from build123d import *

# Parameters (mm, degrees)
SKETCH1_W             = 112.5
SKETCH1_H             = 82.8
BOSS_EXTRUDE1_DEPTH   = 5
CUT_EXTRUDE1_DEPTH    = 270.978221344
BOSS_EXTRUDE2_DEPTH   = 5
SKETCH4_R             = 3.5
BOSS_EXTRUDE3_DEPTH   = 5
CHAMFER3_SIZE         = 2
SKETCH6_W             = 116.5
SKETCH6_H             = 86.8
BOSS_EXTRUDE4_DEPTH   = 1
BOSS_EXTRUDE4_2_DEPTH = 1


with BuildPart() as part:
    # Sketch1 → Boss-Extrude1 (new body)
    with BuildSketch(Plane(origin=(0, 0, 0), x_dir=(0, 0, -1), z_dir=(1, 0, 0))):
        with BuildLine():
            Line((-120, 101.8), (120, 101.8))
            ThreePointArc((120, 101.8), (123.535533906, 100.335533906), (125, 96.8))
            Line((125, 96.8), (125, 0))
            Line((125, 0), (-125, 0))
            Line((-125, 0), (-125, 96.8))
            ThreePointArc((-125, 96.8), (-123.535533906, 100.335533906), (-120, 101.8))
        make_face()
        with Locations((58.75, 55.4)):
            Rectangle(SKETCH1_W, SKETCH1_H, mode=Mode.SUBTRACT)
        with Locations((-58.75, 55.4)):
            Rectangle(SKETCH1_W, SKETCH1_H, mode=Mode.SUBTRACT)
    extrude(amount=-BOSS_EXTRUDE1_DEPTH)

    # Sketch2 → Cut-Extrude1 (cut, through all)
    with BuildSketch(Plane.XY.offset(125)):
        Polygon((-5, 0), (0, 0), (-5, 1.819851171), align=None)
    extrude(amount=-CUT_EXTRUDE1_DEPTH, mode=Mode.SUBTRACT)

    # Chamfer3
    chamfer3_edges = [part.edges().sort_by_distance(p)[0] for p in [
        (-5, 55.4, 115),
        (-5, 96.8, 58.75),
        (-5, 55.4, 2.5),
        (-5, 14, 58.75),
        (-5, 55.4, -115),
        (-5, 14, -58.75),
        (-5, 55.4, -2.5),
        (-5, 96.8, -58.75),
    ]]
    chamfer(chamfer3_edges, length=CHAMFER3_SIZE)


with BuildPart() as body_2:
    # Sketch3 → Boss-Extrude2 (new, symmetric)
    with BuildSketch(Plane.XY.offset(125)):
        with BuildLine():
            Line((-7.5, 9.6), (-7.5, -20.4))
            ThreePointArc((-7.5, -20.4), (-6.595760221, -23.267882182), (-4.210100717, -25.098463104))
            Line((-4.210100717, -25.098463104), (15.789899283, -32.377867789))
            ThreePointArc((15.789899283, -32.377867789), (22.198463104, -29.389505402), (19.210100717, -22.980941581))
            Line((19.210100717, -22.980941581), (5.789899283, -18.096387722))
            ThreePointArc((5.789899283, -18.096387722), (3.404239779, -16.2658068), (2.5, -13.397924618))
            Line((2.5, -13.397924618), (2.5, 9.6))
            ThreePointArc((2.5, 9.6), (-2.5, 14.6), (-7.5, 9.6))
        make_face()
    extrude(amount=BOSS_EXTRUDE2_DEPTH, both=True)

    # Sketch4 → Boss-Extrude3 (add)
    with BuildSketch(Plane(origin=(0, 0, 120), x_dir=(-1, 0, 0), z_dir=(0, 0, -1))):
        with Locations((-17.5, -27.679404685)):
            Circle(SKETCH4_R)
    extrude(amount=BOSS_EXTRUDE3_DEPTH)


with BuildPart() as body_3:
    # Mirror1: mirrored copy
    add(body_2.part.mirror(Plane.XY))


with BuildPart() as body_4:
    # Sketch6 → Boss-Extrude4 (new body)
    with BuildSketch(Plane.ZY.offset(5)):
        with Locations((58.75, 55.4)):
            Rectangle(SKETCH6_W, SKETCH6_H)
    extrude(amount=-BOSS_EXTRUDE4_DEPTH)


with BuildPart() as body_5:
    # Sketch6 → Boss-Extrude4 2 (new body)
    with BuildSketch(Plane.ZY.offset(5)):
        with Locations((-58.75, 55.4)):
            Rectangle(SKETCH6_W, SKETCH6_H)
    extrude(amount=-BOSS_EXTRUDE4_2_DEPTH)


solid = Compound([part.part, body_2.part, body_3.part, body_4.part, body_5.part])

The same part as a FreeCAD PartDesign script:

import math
import FreeCAD as App
import Part
import Sketcher
Q = App.Units.Quantity


def edges_at(feature, points):
    """Names of the edges that pass closest to the given points."""
    edges = feature.Shape.Edges
    near = lambda p: min(range(len(edges)), key=lambda i: edges[i].distToShape(Part.Vertex(*p))[0])
    return sorted({f"Edge{near(p) + 1}" for p in points})

doc = App.newDocument("Part")
params = doc.addObject("Spreadsheet::Sheet", "Params")
for row, (alias, value) in enumerate([
    ("sketch1_radius", "5 mm"),
    ("sketch1_height", "240 mm"),
    ("sketch1_width", "96.8 mm"),
    ("sketch1_width2", "82.8 mm"),
    ("sketch1_height2", "112.5 mm"),
    ("pad1_length", "5 mm"),
    ("sketch2_width", "5 mm"),
    ("chamfer_size", "2 mm"),
    ("sketch3_radius", "5 mm"),
    ("sketch3_height", "30 mm"),
    ("pad2_length", "10 mm"),
    ("sketch4_diameter", "7 mm"),
    ("pad3_length", "5 mm"),
    ("sketch5_width", "86.8 mm"),
    ("sketch5_height", "116.5 mm"),
    ("pad4_length", "1 mm"),
    ("sketch6_width", "86.8 mm"),
    ("sketch6_height", "116.5 mm"),
    ("pad5_length", "1 mm"),
], start=1):
    params.set(f"A{row}", alias)
    params.set(f"B{row}", "=" + value)
    params.setAlias(f"B{row}", alias)

body = doc.addObject("PartDesign::Body", "Body")

sketch1 = doc.addObject("Sketcher::SketchObject", "Sketch")
body.addObject(sketch1)
sketch1.AttachmentSupport = (doc.YZ_Plane, [""])
sketch1.MapMode = "FlatFace"
sketch1.addGeometry(Part.LineSegment(App.Vector(102, -120, 0), App.Vector(102, 120, 0)), False)
sketch1.addGeometry(Part.ArcOfCircle(Part.Circle(App.Vector(97, 120, 0), App.Vector(0, 0, 1), 5), math.radians(0), math.radians(90)), False)
sketch1.addGeometry(Part.LineSegment(App.Vector(97, 125, 0), App.Vector(0, 125, 0)), False)
sketch1.addGeometry(Part.LineSegment(App.Vector(0, 125, 0), App.Vector(0, -125, 0)), False)
sketch1.addGeometry(Part.LineSegment(App.Vector(0, -125, 0), App.Vector(97, -125, 0)), False)
sketch1.addGeometry(Part.ArcOfCircle(Part.Circle(App.Vector(97, -120, 0), App.Vector(0, 0, 1), 5), math.radians(-90), math.radians(0)), False)
sketch1.addGeometry(Part.LineSegment(App.Vector(14, -2, 0), App.Vector(97, -2, 0)), False)
sketch1.addGeometry(Part.LineSegment(App.Vector(97, -2, 0), App.Vector(97, -115, 0)), False)
sketch1.addGeometry(Part.LineSegment(App.Vector(97, -115, 0), App.Vector(14, -115, 0)), False)
sketch1.addGeometry(Part.LineSegment(App.Vector(14, -115, 0), App.Vector(14, -2, 0)), False)
sketch1.addGeometry(Part.LineSegment(App.Vector(14, 115, 0), App.Vector(97, 115, 0)), False)
sketch1.addGeometry(Part.LineSegment(App.Vector(97, 115, 0), App.Vector(97, 2, 0)), False)
sketch1.addGeometry(Part.LineSegment(App.Vector(97, 2, 0), App.Vector(14, 2, 0)), False)
sketch1.addGeometry(Part.LineSegment(App.Vector(14, 2, 0), App.Vector(14, 115, 0)), False)
sketch1.addConstraint(Sketcher.Constraint("Tangent", 0, 2, 1, 1))
sketch1.addConstraint(Sketcher.Constraint("Tangent", 1, 2, 2, 1))
sketch1.addConstraint(Sketcher.Constraint("Coincident", 2, 2, 3, 1))
sketch1.addConstraint(Sketcher.Constraint("Coincident", 3, 2, 4, 1))
sketch1.addConstraint(Sketcher.Constraint("Tangent", 4, 2, 5, 1))
sketch1.addConstraint(Sketcher.Constraint("Tangent", 5, 2, 0, 1))
sketch1.addConstraint(Sketcher.Constraint("Coincident", 6, 2, 7, 1))
sketch1.addConstraint(Sketcher.Constraint("Coincident", 7, 2, 8, 1))
sketch1.addConstraint(Sketcher.Constraint("Coincident", 8, 2, 9, 1))
sketch1.addConstraint(Sketcher.Constraint("Coincident", 9, 2, 6, 1))
sketch1.addConstraint(Sketcher.Constraint("Coincident", 10, 2, 11, 1))
sketch1.addConstraint(Sketcher.Constraint("Coincident", 11, 2, 12, 1))
sketch1.addConstraint(Sketcher.Constraint("Coincident", 12, 2, 13, 1))
sketch1.addConstraint(Sketcher.Constraint("Coincident", 13, 2, 10, 1))
sketch1.addConstraint(Sketcher.Constraint("Vertical", 0))
sketch1.addConstraint(Sketcher.Constraint("Horizontal", 2))
sketch1.addConstraint(Sketcher.Constraint("Vertical", 3))
sketch1.addConstraint(Sketcher.Constraint("Horizontal", 4))
sketch1.addConstraint(Sketcher.Constraint("Horizontal", 6))
sketch1.addConstraint(Sketcher.Constraint("Vertical", 7))
sketch1.addConstraint(Sketcher.Constraint("Horizontal", 8))
sketch1.addConstraint(Sketcher.Constraint("Vertical", 9))
sketch1.addConstraint(Sketcher.Constraint("Horizontal", 10))
sketch1.addConstraint(Sketcher.Constraint("Vertical", 11))
sketch1.addConstraint(Sketcher.Constraint("Horizontal", 12))
sketch1.addConstraint(Sketcher.Constraint("Vertical", 13))
sketch1.addConstraint(Sketcher.Constraint("Equal", 1, 5))
sketch1.addConstraint(Sketcher.Constraint("Symmetric", 2, 2, 3, 2, -1, 1))
sketch1.addConstraint(Sketcher.Constraint("Symmetric", 7, 2, 10, 2, -1))
sketch1.addConstraint(Sketcher.Constraint("Symmetric", 9, 2, 12, 2, -1))
sketch1.addConstraint(Sketcher.Constraint("Vertical", 4, 2, 6, 2))
sketch1.addConstraint(Sketcher.Constraint("Radius", 1, Q("5 mm")))
sketch1.addConstraint(Sketcher.Constraint("DistanceY", 0, 1, 0, 2, Q("240 mm")))
sketch1.addConstraint(Sketcher.Constraint("DistanceX", 2, 2, 2, 1, Q("96.8 mm")))
sketch1.addConstraint(Sketcher.Constraint("DistanceX", 6, 1, 6, 2, Q("82.8 mm")))
sketch1.addConstraint(Sketcher.Constraint("DistanceY", 7, 2, 7, 1, Q("112.5 mm")))
sketch1.addConstraint(Sketcher.Constraint("DistanceY", 7, 2, -1, 1, Q("115 mm")))
sketch1.setExpression("Constraints[31]", "Params.sketch1_radius")
sketch1.setExpression("Constraints[32]", "Params.sketch1_height")
sketch1.setExpression("Constraints[33]", "Params.sketch1_width")
sketch1.setExpression("Constraints[34]", "Params.sketch1_width2")
sketch1.setExpression("Constraints[35]", "Params.sketch1_height2")
pad1 = doc.addObject("PartDesign::Pad", "Pad")
body.addObject(pad1)
pad1.Profile = sketch1
pad1.setExpression("Length", "Params.pad1_length")
pad1.Reversed = True

sketch2 = doc.addObject("Sketcher::SketchObject", "Sketch001")
body.addObject(sketch2)
sketch2.AttachmentSupport = (doc.XY_Plane, [""])
sketch2.MapMode = "FlatFace"
sketch2.AttachmentOffset = App.Placement(App.Vector(0, 0, 125), App.Rotation())
sketch2.addGeometry(Part.LineSegment(App.Vector(-5, 0, 0), App.Vector(0, 0, 0)), False)
sketch2.addGeometry(Part.LineSegment(App.Vector(0, 0, 0), App.Vector(-5, 1.8, 0)), False)
sketch2.addGeometry(Part.LineSegment(App.Vector(-5, 1.8, 0), App.Vector(-5, 0, 0)), False)
sketch2.addConstraint(Sketcher.Constraint("Coincident", 0, 2, 1, 1))
sketch2.addConstraint(Sketcher.Constraint("Coincident", 1, 2, 2, 1))
sketch2.addConstraint(Sketcher.Constraint("Coincident", 2, 2, 0, 1))
sketch2.addConstraint(Sketcher.Constraint("Horizontal", 0))
sketch2.addConstraint(Sketcher.Constraint("Vertical", 2))
sketch2.addConstraint(Sketcher.Constraint("Coincident", 0, 2, -1, 1))
sketch2.addConstraint(Sketcher.Constraint("DistanceX", 0, 1, 0, 2, Q("5 mm")))
sketch2.addConstraint(Sketcher.Constraint("Angle", 1, Q("160 deg")))
sketch2.setExpression("Constraints[6]", "Params.sketch2_width")
pocket1 = doc.addObject("PartDesign::Pocket", "Pocket")
body.addObject(pocket1)
pocket1.Profile = sketch2
pocket1.Type = "ThroughAll"
doc.recompute()

chamfer = doc.addObject("PartDesign::Chamfer", "Chamfer")
body.addObject(chamfer)
chamfer.Base = (pocket1, edges_at(pocket1, [
    (-5, 55.4, 115),
    (-5, 96.8, 58.75),
    (-5, 55.4, 2.5),
    (-5, 14, 58.75),
    (-5, 55.4, -115),
    (-5, 14, -58.75),
    (-5, 55.4, -2.5),
    (-5, 96.8, -58.75),
]))
chamfer.setExpression("Size", "Params.chamfer_size")
body2 = doc.addObject("PartDesign::Body", "Body001")

sketch3 = doc.addObject("Sketcher::SketchObject", "Sketch002")
body2.addObject(sketch3)
sketch3.AttachmentSupport = (doc.getObject("XY_Plane001"), [""])
sketch3.MapMode = "FlatFace"
sketch3.AttachmentOffset = App.Placement(App.Vector(0, 0, 125), App.Rotation())
sketch3.addGeometry(Part.LineSegment(App.Vector(-8, 10, 0), App.Vector(-8, -20, 0)), False)
sketch3.addGeometry(Part.ArcOfCircle(Part.Circle(App.Vector(-2, -20, 0), App.Vector(0, 0, 1), 5), math.radians(-180), math.radians(-110)), False)
sketch3.addGeometry(Part.LineSegment(App.Vector(-4, -25, 0), App.Vector(16, -32, 0)), False)
sketch3.addGeometry(Part.ArcOfCircle(Part.Circle(App.Vector(18, -28, 0), App.Vector(0, 0, 1), 5), math.radians(-110), math.radians(70)), False)
sketch3.addGeometry(Part.LineSegment(App.Vector(19, -23, 0), App.Vector(6, -18, 0)), False)
sketch3.addGeometry(Part.ArcOfCircle(Part.Circle(App.Vector(8, -13, 0), App.Vector(0, 0, 1), 5), math.radians(-180), math.radians(-110)), False)
sketch3.addGeometry(Part.LineSegment(App.Vector(2, -13, 0), App.Vector(2, 10, 0)), False)
sketch3.addGeometry(Part.ArcOfCircle(Part.Circle(App.Vector(-2, 10, 0), App.Vector(0, 0, 1), 5), math.radians(0), math.radians(180)), False)
sketch3.addConstraint(Sketcher.Constraint("Tangent", 0, 2, 1, 1))
sketch3.addConstraint(Sketcher.Constraint("Tangent", 1, 2, 2, 1))
sketch3.addConstraint(Sketcher.Constraint("Tangent", 2, 2, 3, 1))
sketch3.addConstraint(Sketcher.Constraint("Tangent", 3, 2, 4, 1))
sketch3.addConstraint(Sketcher.Constraint("Tangent", 4, 2, 5, 2))
sketch3.addConstraint(Sketcher.Constraint("Tangent", 5, 1, 6, 1))
sketch3.addConstraint(Sketcher.Constraint("Tangent", 6, 2, 7, 1))
sketch3.addConstraint(Sketcher.Constraint("Tangent", 7, 2, 0, 1))
sketch3.addConstraint(Sketcher.Constraint("Vertical", 0))
sketch3.addConstraint(Sketcher.Constraint("Vertical", 6))
sketch3.addConstraint(Sketcher.Constraint("Equal", 1, 3))
sketch3.addConstraint(Sketcher.Constraint("Equal", 3, 5))
sketch3.addConstraint(Sketcher.Constraint("Equal", 5, 7))
sketch3.addConstraint(Sketcher.Constraint("Parallel", 2, 4))
sketch3.addConstraint(Sketcher.Constraint("Radius", 1, Q("5 mm")))
sketch3.addConstraint(Sketcher.Constraint("DistanceY", 0, 2, 0, 1, Q("30 mm")))
sketch3.addConstraint(Sketcher.Constraint("Angle", 2, Q("-20 deg")))
sketch3.addConstraint(Sketcher.Constraint("DistanceX", 1, 3, 3, 3, Q("20 mm")))
sketch3.addConstraint(Sketcher.Constraint("DistanceX", 1, 3, -1, 1, Q("2.5 mm")))
sketch3.addConstraint(Sketcher.Constraint("DistanceY", 1, 3, -1, 1, Q("20.4 mm")))
sketch3.setExpression("Constraints[14]", "Params.sketch3_radius")
sketch3.setExpression("Constraints[15]", "Params.sketch3_height")
pad2 = doc.addObject("PartDesign::Pad", "Pad001")
body2.addObject(pad2)
pad2.Profile = sketch3
pad2.setExpression("Length", "Params.pad2_length")
pad2.Midplane = True

sketch4 = doc.addObject("Sketcher::SketchObject", "Sketch003")
body2.addObject(sketch4)
sketch4.AttachmentSupport = (doc.getObject("XY_Plane001"), [""])
sketch4.MapMode = "FlatFace"
sketch4.AttachmentOffset = App.Placement(App.Vector(0, 0, 120), App.Rotation())
sketch4.addGeometry(Part.Circle(App.Vector(17.5, -27.7, 0), App.Vector(0, 0, 1), 3.5), False)
sketch4.addConstraint(Sketcher.Constraint("Diameter", 0, Q("7 mm")))
sketch4.addConstraint(Sketcher.Constraint("DistanceX", -1, 1, 0, 3, Q("17.5 mm")))
sketch4.addConstraint(Sketcher.Constraint("DistanceY", 0, 3, -1, 1, Q("27.679405 mm")))
sketch4.setExpression("Constraints[0]", "Params.sketch4_diameter")
pad3 = doc.addObject("PartDesign::Pad", "Pad002")
body2.addObject(pad3)
pad3.Profile = sketch4
pad3.setExpression("Length", "Params.pad3_length")
pad3.Reversed = True
body3 = doc.addObject("PartDesign::Body", "Body002")
doc.recompute()

mirroring = doc.addObject("Part::Mirroring", "Mirroring")
mirroring.Source = body2
mirroring.Base = App.Vector(0, 0, 0)
mirroring.Normal = App.Vector(0, 0, 1)
body3.BaseFeature = mirroring
doc.recompute()
body4 = doc.addObject("PartDesign::Body", "Body003")

sketch5 = doc.addObject("Sketcher::SketchObject", "Sketch004")
body4.addObject(sketch5)
sketch5.AttachmentSupport = (doc.getObject("YZ_Plane003"), [""])
sketch5.MapMode = "FlatFace"
sketch5.AttachmentOffset = App.Placement(App.Vector(0, 0, -5), App.Rotation())
sketch5.addGeometry(Part.LineSegment(App.Vector(99, 0, 0), App.Vector(12, 0, 0)), False)
sketch5.addGeometry(Part.LineSegment(App.Vector(12, 0, 0), App.Vector(12, 117, 0)), False)
sketch5.addGeometry(Part.LineSegment(App.Vector(12, 117, 0), App.Vector(99, 117, 0)), False)
sketch5.addGeometry(Part.LineSegment(App.Vector(99, 117, 0), App.Vector(99, 0, 0)), False)
sketch5.addConstraint(Sketcher.Constraint("Coincident", 0, 2, 1, 1))
sketch5.addConstraint(Sketcher.Constraint("Coincident", 1, 2, 2, 1))
sketch5.addConstraint(Sketcher.Constraint("Coincident", 2, 2, 3, 1))
sketch5.addConstraint(Sketcher.Constraint("Coincident", 3, 2, 0, 1))
sketch5.addConstraint(Sketcher.Constraint("Horizontal", 0))
sketch5.addConstraint(Sketcher.Constraint("Vertical", 1))
sketch5.addConstraint(Sketcher.Constraint("Horizontal", 2))
sketch5.addConstraint(Sketcher.Constraint("Vertical", 3))
sketch5.addConstraint(Sketcher.Constraint("DistanceX", 0, 2, 0, 1, Q("86.8 mm")))
sketch5.addConstraint(Sketcher.Constraint("DistanceY", 1, 1, 1, 2, Q("116.5 mm")))
sketch5.addConstraint(Sketcher.Constraint("DistanceX", -1, 1, 0, 2, Q("12 mm")))
sketch5.addConstraint(Sketcher.Constraint("DistanceY", -1, 1, 1, 2, Q("117 mm")))
sketch5.setExpression("Constraints[8]", "Params.sketch5_width")
sketch5.setExpression("Constraints[9]", "Params.sketch5_height")
pad4 = doc.addObject("PartDesign::Pad", "Pad003")
body4.addObject(pad4)
pad4.Profile = sketch5
pad4.setExpression("Length", "Params.pad4_length")
body5 = doc.addObject("PartDesign::Body", "Body004")

sketch6 = doc.addObject("Sketcher::SketchObject", "Sketch005")
body5.addObject(sketch6)
sketch6.AttachmentSupport = (doc.getObject("YZ_Plane004"), [""])
sketch6.MapMode = "FlatFace"
sketch6.AttachmentOffset = App.Placement(App.Vector(0, 0, -5), App.Rotation())
sketch6.addGeometry(Part.LineSegment(App.Vector(99, -117, 0), App.Vector(12, -117, 0)), False)
sketch6.addGeometry(Part.LineSegment(App.Vector(12, -117, 0), App.Vector(12, 0, 0)), False)
sketch6.addGeometry(Part.LineSegment(App.Vector(12, 0, 0), App.Vector(99, 0, 0)), False)
sketch6.addGeometry(Part.LineSegment(App.Vector(99, 0, 0), App.Vector(99, -117, 0)), False)
sketch6.addConstraint(Sketcher.Constraint("Coincident", 0, 2, 1, 1))
sketch6.addConstraint(Sketcher.Constraint("Coincident", 1, 2, 2, 1))
sketch6.addConstraint(Sketcher.Constraint("Coincident", 2, 2, 3, 1))
sketch6.addConstraint(Sketcher.Constraint("Coincident", 3, 2, 0, 1))
sketch6.addConstraint(Sketcher.Constraint("Horizontal", 0))
sketch6.addConstraint(Sketcher.Constraint("Vertical", 1))
sketch6.addConstraint(Sketcher.Constraint("Horizontal", 2))
sketch6.addConstraint(Sketcher.Constraint("Vertical", 3))
sketch6.addConstraint(Sketcher.Constraint("DistanceX", 0, 2, 0, 1, Q("86.8 mm")))
sketch6.addConstraint(Sketcher.Constraint("DistanceY", 1, 1, 1, 2, Q("116.5 mm")))
sketch6.addConstraint(Sketcher.Constraint("DistanceX", -1, 1, 0, 2, Q("12 mm")))
sketch6.addConstraint(Sketcher.Constraint("DistanceY", 0, 2, -1, 1, Q("117 mm")))
sketch6.setExpression("Constraints[8]", "Params.sketch6_width")
sketch6.setExpression("Constraints[9]", "Params.sketch6_height")
pad5 = doc.addObject("PartDesign::Pad", "Pad004")
body5.addObject(pad5)
pad5.Profile = sketch6
pad5.setExpression("Length", "Params.pad5_length")
mirroring.Visibility = False

doc.recompute()
